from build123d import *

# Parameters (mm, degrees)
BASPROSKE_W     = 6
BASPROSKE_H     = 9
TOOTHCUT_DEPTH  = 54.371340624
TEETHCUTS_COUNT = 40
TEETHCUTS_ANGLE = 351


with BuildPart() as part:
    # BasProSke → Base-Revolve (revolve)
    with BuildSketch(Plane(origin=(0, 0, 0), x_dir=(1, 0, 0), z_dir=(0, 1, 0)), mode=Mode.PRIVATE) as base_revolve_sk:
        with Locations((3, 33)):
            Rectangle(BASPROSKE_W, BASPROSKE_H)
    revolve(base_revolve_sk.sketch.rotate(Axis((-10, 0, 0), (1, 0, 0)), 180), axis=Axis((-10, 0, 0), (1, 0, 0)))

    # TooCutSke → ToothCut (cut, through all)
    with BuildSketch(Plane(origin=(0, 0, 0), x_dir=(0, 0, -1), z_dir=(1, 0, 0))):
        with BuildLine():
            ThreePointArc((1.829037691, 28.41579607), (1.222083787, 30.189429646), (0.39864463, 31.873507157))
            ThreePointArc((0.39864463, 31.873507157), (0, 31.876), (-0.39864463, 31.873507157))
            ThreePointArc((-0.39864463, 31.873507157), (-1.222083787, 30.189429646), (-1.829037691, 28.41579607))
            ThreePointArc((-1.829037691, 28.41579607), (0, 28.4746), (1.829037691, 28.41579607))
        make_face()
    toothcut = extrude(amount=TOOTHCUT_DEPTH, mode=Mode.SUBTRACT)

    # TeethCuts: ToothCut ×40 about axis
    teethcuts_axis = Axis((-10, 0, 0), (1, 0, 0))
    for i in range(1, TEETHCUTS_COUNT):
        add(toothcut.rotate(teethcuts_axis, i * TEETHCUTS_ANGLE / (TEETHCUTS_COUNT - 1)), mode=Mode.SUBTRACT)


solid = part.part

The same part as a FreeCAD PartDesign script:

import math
import FreeCAD as App
import Part
import Sketcher

V = App.Vector
Q = App.Units.Quantity

doc = App.newDocument("Part")
body = doc.addObject("PartDesign::Body", "Body")

sketch1 = body.newObject("Sketcher::SketchObject", "Sketch")
sketch1.AttachmentSupport = (doc.getObject("XZ_Plane"), [""])
sketch1.MapMode = "FlatFace"
sketch1.addGeometry([
    Part.LineSegment(V(0, -37.5, 0), V(0, -28.5, 0)),
    Part.LineSegment(V(0, -28.5, 0), V(6, -28.5, 0)),
    Part.LineSegment(V(6, -28.5, 0), V(6, -37.5, 0)),
    Part.LineSegment(V(6, -37.5, 0), V(0, -37.5, 0)),
], False)
sketch1.addConstraint([
    Sketcher.Constraint("Coincident", 0, 2, 1, 1),
    Sketcher.Constraint("Coincident", 1, 2, 2, 1),
    Sketcher.Constraint("Coincident", 2, 2, 3, 1),
    Sketcher.Constraint("Coincident", 3, 2, 0, 1),
    Sketcher.Constraint("Vertical", 0),
    Sketcher.Constraint("Horizontal", 1),
    Sketcher.Constraint("Vertical", 2),
    Sketcher.Constraint("Horizontal", 3),
    Sketcher.Constraint("PointOnObject", 0, 2, -2),
    Sketcher.Constraint("DistanceX", 1, 1, 1, 2, Q("6 mm")),
    Sketcher.Constraint("DistanceY", 0, 1, 0, 2, Q("9 mm")),
    Sketcher.Constraint("DistanceY", 0, 2, -1, 1, Q("28.5 mm")),
])
revolution = body.newObject("PartDesign::Revolution", "Revolution")
revolution.Profile = sketch1
revolution.ReferenceAxis = (sketch1, ["H_Axis"])
revolution.Angle = 360

sketch2 = body.newObject("Sketcher::SketchObject", "Sketch001")
sketch2.AttachmentSupport = (doc.getObject("YZ_Plane"), [""])
sketch2.MapMode = "FlatFace"
sketch2.addGeometry([
    Part.ArcOfCircle(Part.Circle(V(24.455467, 12.638712, 0), V(0, 0, 1), 15), math.radians(-74.691155), math.radians(-60.36084)),
    Part.ArcOfCircle(Part.Circle(V(-0.000006, 0, 0), V(0, 0, 1), 31.876006), math.radians(-0.716566), math.radians(0.716566)),
    Part.ArcOfCircle(Part.Circle(V(24.455467, -12.638712, 0), V(0, 0, 1), 15), math.radians(60.36084), math.radians(74.691155)),
    Part.ArcOfCircle(Part.Circle(V(0, 0, 0), V(0, 0, 1), 28.4746), math.radians(-3.682873), math.radians(3.682873)),
], False)
sketch2.addConstraint([
    Sketcher.Constraint("Coincident", 0, 2, 1, 1),
    Sketcher.Constraint("Coincident", 1, 2, 2, 1),
    Sketcher.Constraint("Coincident", 2, 2, 3, 2),
    Sketcher.Constraint("Coincident", 3, 1, 0, 1),
    Sketcher.Constraint("Coincident", 1, 3, -1, 1),
    Sketcher.Constraint("Coincident", 3, 3, -1, 1),
    Sketcher.Constraint("Equal", 0, 2),
    Sketcher.Constraint("Symmetric", 0, 3, 2, 3, -1),
    Sketcher.Constraint("Radius", 0, Q("15 mm")),
    Sketcher.Constraint("Radius", 3, Q("28.4746 mm")),
    Sketcher.Constraint("Radius", 1, Q("31.876006 mm")),
    Sketcher.Constraint("DistanceX", 2, 3, 0, 2, Q("7.41804 mm")),
    Sketcher.Constraint("DistanceY", 0, 2, 1, 2, Q("0.797289 mm")),
])
pocket1 = body.newObject("PartDesign::Pocket", "Pocket")
pocket1.Profile = sketch2
pocket1.Type = "ThroughAll"
pocket1.Reversed = True
doc.recompute()

polarpattern = body.newObject("PartDesign::PolarPattern", "PolarPattern")
polarpattern.Originals = [pocket1]
polarpattern.Axis = (doc.getObject("X_Axis"), [""])
polarpattern.Angle = 360
polarpattern.Occurrences = 40
body.Tip = polarpattern

doc.recompute()
